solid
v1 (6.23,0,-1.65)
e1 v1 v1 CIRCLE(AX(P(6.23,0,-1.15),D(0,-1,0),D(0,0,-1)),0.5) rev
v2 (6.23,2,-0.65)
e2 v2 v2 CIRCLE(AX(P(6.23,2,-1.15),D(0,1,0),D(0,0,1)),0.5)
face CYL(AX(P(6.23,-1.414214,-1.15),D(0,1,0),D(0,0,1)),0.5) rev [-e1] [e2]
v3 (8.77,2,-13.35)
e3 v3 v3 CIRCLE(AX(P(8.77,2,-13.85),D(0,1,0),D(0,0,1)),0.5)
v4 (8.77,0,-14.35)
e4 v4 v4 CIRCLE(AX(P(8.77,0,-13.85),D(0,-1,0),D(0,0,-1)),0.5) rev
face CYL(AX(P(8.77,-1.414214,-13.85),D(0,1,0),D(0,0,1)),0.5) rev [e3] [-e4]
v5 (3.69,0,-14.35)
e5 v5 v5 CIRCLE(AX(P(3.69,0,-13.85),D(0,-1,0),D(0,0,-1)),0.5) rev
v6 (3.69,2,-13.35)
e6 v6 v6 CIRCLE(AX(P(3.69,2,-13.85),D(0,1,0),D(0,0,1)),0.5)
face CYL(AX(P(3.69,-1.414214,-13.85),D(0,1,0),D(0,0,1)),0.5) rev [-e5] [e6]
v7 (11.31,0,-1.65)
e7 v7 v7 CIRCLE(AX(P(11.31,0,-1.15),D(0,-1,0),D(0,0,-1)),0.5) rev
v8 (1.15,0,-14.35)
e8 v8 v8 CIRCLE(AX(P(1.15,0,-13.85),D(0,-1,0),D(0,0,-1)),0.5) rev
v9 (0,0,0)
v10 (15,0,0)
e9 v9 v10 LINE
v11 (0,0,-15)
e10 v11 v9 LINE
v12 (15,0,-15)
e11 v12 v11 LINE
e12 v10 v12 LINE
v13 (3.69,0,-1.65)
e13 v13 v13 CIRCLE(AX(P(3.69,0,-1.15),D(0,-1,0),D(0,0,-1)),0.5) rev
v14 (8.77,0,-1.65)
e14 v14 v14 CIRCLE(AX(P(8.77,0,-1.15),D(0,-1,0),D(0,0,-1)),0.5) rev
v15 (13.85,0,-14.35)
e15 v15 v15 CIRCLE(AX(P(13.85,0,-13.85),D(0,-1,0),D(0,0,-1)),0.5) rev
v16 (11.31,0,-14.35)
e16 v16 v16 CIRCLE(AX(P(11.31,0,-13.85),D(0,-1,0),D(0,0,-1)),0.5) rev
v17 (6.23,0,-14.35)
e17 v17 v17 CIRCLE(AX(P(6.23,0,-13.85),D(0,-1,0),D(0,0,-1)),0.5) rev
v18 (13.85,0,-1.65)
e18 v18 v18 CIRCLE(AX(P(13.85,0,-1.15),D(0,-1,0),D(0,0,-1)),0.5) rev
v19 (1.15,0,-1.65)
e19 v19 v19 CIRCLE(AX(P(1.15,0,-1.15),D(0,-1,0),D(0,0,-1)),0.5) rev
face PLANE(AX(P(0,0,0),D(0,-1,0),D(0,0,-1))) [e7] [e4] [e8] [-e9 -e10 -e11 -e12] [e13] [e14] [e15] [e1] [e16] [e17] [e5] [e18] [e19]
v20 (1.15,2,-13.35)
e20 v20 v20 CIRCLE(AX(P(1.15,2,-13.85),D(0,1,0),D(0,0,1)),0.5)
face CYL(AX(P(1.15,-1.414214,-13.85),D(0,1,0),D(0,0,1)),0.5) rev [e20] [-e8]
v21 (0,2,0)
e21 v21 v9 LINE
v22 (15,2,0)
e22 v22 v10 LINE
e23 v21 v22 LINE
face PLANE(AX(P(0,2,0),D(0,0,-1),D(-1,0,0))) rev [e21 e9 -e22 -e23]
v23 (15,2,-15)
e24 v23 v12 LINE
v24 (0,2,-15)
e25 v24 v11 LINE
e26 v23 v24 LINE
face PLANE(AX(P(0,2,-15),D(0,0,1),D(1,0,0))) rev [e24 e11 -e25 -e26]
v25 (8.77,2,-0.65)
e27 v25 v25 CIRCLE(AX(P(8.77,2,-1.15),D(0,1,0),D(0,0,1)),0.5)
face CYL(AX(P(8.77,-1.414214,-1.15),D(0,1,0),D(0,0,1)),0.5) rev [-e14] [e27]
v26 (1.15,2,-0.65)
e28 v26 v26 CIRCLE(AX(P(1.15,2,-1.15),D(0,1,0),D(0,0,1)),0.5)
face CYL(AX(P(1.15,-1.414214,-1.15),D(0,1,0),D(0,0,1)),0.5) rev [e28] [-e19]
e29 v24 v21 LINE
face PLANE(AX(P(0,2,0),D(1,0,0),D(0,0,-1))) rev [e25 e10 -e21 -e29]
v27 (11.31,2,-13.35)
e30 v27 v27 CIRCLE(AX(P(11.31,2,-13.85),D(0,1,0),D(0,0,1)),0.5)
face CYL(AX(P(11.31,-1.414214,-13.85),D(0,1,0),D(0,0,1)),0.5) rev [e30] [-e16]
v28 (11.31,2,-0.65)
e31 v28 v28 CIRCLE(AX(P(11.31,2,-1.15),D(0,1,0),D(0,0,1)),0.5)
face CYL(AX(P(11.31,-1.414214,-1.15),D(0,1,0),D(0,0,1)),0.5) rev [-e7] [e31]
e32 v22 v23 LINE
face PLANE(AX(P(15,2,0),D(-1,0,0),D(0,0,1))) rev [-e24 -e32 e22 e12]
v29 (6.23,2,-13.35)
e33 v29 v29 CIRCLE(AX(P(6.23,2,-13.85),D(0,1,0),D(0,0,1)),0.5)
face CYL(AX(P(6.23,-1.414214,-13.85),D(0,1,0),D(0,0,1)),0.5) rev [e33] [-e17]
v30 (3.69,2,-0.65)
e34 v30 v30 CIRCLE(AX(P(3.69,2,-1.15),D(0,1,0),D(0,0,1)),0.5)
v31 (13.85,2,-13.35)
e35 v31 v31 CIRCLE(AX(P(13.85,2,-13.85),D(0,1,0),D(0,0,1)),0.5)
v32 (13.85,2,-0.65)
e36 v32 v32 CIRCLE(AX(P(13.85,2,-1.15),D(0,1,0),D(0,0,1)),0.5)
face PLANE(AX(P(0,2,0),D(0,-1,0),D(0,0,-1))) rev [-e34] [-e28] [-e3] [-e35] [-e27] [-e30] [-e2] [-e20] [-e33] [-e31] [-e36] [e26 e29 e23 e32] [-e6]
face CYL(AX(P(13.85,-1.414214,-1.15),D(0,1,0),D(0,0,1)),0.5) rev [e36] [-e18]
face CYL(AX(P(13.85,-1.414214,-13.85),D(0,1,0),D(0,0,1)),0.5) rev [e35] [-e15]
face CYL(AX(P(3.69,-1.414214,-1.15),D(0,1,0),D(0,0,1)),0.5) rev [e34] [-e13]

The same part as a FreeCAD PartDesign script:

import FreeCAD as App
import Part
import Sketcher
Q = App.Units.Quantity

doc = App.newDocument("Part")
params = doc.addObject("Spreadsheet::Sheet", "Params")
for row, (alias, value) in enumerate([
    ("sketch1_width", "15 mm"),
    ("pad1_length", "2 mm"),
    ("sketch2_diameter", "1 mm"),
    ("pocket1_length", "2 mm"),
], start=1):
    params.set(f"A{row}", alias)
    params.set(f"B{row}", "=" + value)
    params.setAlias(f"B{row}", alias)

body = doc.addObject("PartDesign::Body", "Body")

# Sketch on XZ plane
sketch1 = body.newObject("Sketcher::SketchObject", "Sketch")
sketch1.AttachmentSupport = (doc.getObject("XZ_Plane"), [""])
sketch1.MapMode = "FlatFace"
sketch1.addGeometry([
    Part.LineSegment(App.Vector(0, -15, 0), App.Vector(0, 0, 0)),
    Part.LineSegment(App.Vector(0, 0, 0), App.Vector(15, 0, 0)),
    Part.LineSegment(App.Vector(15, 0, 0), App.Vector(15, -15, 0)),
    Part.LineSegment(App.Vector(15, -15, 0), App.Vector(0, -15, 0)),
], False)
sketch1.addConstraint([
    Sketcher.Constraint("Coincident", 0, 2, 1, 1),
    Sketcher.Constraint("Coincident", 1, 2, 2, 1),
    Sketcher.Constraint("Coincident", 2, 2, 3, 1),
    Sketcher.Constraint("Coincident", 3, 2, 0, 1),
    Sketcher.Constraint("Vertical", 0),
    Sketcher.Constraint("Horizontal", 1),
    Sketcher.Constraint("Vertical", 2),
    Sketcher.Constraint("Horizontal", 3),
    Sketcher.Constraint("Coincident", 0, 2, -1, 1),
    Sketcher.Constraint("Equal", 3, 0),
    Sketcher.Constraint("DistanceX", 1, 1, 1, 2, Q("15 mm")),
])
sketch1.setExpression("Constraints[10]", "Params.sketch1_width")
pad1 = body.newObject("PartDesign::Pad", "Pad")
pad1.Profile = sketch1
pad1.setExpression("Length", "Params.pad1_length")
pad1.Reversed = True

# Sketch on XZ plane
sketch2 = body.newObject("Sketcher::SketchObject", "Sketch001")
sketch2.AttachmentSupport = (doc.getObject("XZ_Plane"), [""])
sketch2.MapMode = "FlatFace"
sketch2.AttachmentOffset = App.Placement(App.Vector(0, 0, -2), App.Rotation())
sketch2.addGeometry([
    Part.Circle(App.Vector(13.8, -1.1, 0), App.Vector(0, 0, 1), 0.5),  # 0
    Part.Circle(App.Vector(11.3, -1.1, 0), App.Vector(0, 0, 1), 0.5),  # 1
    Part.Circle(App.Vector(8.8, -1.1, 0), App.Vector(0, 0, 1), 0.5),  # 2
    Part.Circle(App.Vector(6.2, -1.1, 0), App.Vector(0, 0, 1), 0.5),  # 3
    Part.Circle(App.Vector(3.7, -1.1, 0), App.Vector(0, 0, 1), 0.5),  # 4
    Part.Circle(App.Vector(1.1, -1.1, 0), App.Vector(0, 0, 1), 0.5),  # 5
    Part.Circle(App.Vector(13.8, -13.8, 0), App.Vector(0, 0, 1), 0.5),  # 6
    Part.Circle(App.Vector(11.3, -13.8, 0), App.Vector(0, 0, 1), 0.5),  # 7
    Part.Circle(App.Vector(8.8, -13.8, 0), App.Vector(0, 0, 1), 0.5),  # 8
    Part.Circle(App.Vector(6.2, -13.8, 0), App.Vector(0, 0, 1), 0.5),  # 9
    Part.Circle(App.Vector(3.7, -13.8, 0), App.Vector(0, 0, 1), 0.5),  # 10
    Part.Circle(App.Vector(1.1, -13.8, 0), App.Vector(0, 0, 1), 0.5),  # 11
], False)
sketch2.addConstraint([
    Sketcher.Constraint("Equal", 0, 1),
    Sketcher.Constraint("Equal", 1, 2),
    Sketcher.Constraint("Equal", 2, 3),
    Sketcher.Constraint("Equal", 3, 4),
    Sketcher.Constraint("Equal", 4, 5),
    Sketcher.Constraint("Equal", 5, 6),
    Sketcher.Constraint("Equal", 6, 7),
    Sketcher.Constraint("Equal", 7, 8),
    Sketcher.Constraint("Equal", 8, 9),
    Sketcher.Constraint("Equal", 9, 10),
    Sketcher.Constraint("Equal", 10, 11),
    Sketcher.Constraint("Horizontal", 0, 3, 1, 3),
    Sketcher.Constraint("Horizontal", 1, 3, 2, 3),
    Sketcher.Constraint("Horizontal", 2, 3, 3, 3),
    Sketcher.Constraint("Horizontal", 3, 3, 4, 3),
    Sketcher.Constraint("Horizontal", 4, 3, 5, 3),
    Sketcher.Constraint("Horizontal", 6, 3, 7, 3),
    Sketcher.Constraint("Horizontal", 7, 3, 8, 3),
    Sketcher.Constraint("Horizontal", 8, 3, 9, 3),
    Sketcher.Constraint("Horizontal", 9, 3, 10, 3),
    Sketcher.Constraint("Horizontal", 10, 3, 11, 3),
    Sketcher.Constraint("Vertical", 0, 3, 6, 3),
    Sketcher.Constraint("Vertical", 1, 3, 7, 3),
    Sketcher.Constraint("Vertical", 2, 3, 8, 3),
    Sketcher.Constraint("Vertical", 3, 3, 9, 3),
    Sketcher.Constraint("Vertical", 4, 3, 10, 3),
    Sketcher.Constraint("Vertical", 5, 3, 11, 3),
    Sketcher.Constraint("Diameter", 0, Q("1 mm")),
    Sketcher.Constraint("DistanceX", 5, 3, 0, 3, Q("12.7 mm")),
    Sketcher.Constraint("DistanceY", 6, 3, 0, 3, Q("12.7 mm")),
    Sketcher.Constraint("DistanceX", -1, 1, 0, 3, Q("13.85 mm")),
    Sketcher.Constraint("DistanceY", 0, 3, -1, 1, Q("1.15 mm")),
    Sketcher.Constraint("DistanceX", -1, 1, 1, 3, Q("11.31 mm")),
    Sketcher.Constraint("DistanceX", -1, 1, 2, 3, Q("8.77 mm")),
    Sketcher.Constraint("DistanceX", -1, 1, 3, 3, Q("6.23 mm")),
    Sketcher.Constraint("DistanceX", -1, 1, 4, 3, Q("3.69 mm")),
])
sketch2.setExpression("Constraints[27]", "Params.sketch2_diameter")
pocket1 = body.newObject("PartDesign::Pocket", "Pocket")
pocket1.Profile = sketch2
pocket1.setExpression("Length", "Params.pocket1_length")
pocket1.Reversed = True

doc.recompute()
